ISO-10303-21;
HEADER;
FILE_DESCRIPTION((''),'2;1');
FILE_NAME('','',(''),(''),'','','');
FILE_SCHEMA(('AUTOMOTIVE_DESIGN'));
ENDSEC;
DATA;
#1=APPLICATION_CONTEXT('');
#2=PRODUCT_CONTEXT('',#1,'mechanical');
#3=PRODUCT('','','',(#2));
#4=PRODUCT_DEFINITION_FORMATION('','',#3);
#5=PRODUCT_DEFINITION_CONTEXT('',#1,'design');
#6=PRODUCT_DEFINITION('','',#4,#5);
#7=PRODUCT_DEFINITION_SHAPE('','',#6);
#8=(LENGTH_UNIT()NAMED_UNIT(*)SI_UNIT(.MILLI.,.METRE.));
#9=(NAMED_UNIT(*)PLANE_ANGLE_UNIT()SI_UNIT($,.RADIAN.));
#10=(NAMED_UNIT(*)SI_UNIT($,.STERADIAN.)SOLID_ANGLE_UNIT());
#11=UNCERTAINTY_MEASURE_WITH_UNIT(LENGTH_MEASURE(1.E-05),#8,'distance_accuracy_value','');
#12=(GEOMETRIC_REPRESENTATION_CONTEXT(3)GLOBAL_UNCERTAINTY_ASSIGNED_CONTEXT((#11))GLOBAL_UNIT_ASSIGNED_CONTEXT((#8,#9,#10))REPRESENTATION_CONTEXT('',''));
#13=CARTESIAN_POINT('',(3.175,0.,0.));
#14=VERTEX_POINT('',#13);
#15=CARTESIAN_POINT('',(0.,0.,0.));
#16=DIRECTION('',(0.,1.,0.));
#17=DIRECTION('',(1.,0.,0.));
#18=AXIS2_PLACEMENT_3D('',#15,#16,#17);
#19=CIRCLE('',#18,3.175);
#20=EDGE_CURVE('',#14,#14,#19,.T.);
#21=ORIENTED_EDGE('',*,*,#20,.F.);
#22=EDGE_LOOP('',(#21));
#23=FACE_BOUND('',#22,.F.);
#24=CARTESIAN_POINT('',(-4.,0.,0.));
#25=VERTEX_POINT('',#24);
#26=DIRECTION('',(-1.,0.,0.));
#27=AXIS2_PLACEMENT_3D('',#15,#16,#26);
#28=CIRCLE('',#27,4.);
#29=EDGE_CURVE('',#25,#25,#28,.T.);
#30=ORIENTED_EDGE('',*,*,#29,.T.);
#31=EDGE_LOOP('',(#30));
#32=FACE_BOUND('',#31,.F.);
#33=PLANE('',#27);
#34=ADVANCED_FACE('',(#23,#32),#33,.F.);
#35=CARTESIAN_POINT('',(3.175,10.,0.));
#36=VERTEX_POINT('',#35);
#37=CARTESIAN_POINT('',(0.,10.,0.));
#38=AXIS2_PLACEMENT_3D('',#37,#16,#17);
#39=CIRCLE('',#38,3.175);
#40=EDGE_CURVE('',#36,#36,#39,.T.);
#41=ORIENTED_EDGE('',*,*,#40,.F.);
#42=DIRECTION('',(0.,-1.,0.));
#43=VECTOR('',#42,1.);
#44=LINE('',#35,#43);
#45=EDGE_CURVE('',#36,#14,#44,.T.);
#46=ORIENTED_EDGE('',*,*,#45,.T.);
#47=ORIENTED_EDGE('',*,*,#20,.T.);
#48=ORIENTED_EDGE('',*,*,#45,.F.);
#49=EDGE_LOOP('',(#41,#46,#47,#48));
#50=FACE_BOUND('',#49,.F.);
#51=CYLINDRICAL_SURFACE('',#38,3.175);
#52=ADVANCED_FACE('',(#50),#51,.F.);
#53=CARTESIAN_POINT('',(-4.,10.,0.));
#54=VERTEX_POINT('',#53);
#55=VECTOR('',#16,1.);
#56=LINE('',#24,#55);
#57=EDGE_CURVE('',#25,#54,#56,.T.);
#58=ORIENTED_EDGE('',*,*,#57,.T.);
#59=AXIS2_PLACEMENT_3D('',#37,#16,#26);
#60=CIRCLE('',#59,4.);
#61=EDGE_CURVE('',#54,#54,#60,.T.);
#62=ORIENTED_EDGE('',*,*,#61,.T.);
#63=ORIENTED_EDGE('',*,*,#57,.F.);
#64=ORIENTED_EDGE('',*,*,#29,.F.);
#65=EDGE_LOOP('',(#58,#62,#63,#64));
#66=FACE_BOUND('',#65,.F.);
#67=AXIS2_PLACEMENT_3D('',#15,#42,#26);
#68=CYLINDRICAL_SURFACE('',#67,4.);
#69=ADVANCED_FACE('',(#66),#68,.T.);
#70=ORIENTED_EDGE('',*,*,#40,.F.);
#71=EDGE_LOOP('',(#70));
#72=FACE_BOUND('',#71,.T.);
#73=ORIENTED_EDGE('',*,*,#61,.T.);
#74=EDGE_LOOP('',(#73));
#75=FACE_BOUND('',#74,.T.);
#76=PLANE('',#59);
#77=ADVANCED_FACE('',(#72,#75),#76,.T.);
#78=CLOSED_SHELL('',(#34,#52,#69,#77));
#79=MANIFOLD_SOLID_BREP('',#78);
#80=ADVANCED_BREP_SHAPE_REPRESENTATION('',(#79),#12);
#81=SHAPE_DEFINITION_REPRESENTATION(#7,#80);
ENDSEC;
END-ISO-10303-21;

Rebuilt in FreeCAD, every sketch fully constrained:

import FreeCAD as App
import Part
import Sketcher

V = App.Vector

doc = App.newDocument("Part")
params = doc.addObject("Spreadsheet::Sheet", "Params")
for row, (alias, value) in enumerate([
    ("sketch1_diameter", "8 mm"),
    ("pad1_length", "10 mm"),
    ("sketch2_diameter", "6.35 mm"),
    ("pocket1_length", "20 mm"),
], start=1):
    params.set(f"A{row}", alias)
    params.set(f"B{row}", "=" + value)
    params.setAlias(f"B{row}", alias)

body = doc.addObject("PartDesign::Body", "Body")

# Sketch on XZ plane
sketch1 = doc.addObject("Sketcher::SketchObject", "Sketch")
body.addObject(sketch1)
sketch1.AttachmentSupport = (doc.XZ_Plane, [""])
sketch1.MapMode = "FlatFace"
sketch1.addGeometry(Part.Circle(V(0, 0, 0), V(0, 0, 1), 4), False)
sketch1.addConstraint([
    Sketcher.Constraint("Coincident", 0, 3, -1, 1),
    Sketcher.Constraint("Diameter", 0, 8.0),
])
sketch1.setExpression("Constraints[1]", "Params.sketch1_diameter")
pad1 = doc.addObject("PartDesign::Pad", "Pad")
body.addObject(pad1)
pad1.Profile = sketch1
pad1.setExpression("Length", "Params.pad1_length")
pad1.Reversed = True

# Sketch on XZ plane
sketch2 = doc.addObject("Sketcher::SketchObject", "Sketch001")
body.addObject(sketch2)
sketch2.AttachmentSupport = (doc.XZ_Plane, [""])
sketch2.MapMode = "FlatFace"
sketch2.AttachmentOffset = App.Placement(V(0, 0, -10), App.Rotation())
sketch2.addGeometry(Part.Circle(V(0, 0, 0), V(0, 0, 1), 3.2), False)
sketch2.addConstraint([
    Sketcher.Constraint("Coincident", 0, 3, -1, 1),
    Sketcher.Constraint("Diameter", 0, 6.35),
])
sketch2.setExpression("Constraints[1]", "Params.sketch2_diameter")
pocket1 = doc.addObject("PartDesign::Pocket", "Pocket")
body.addObject(pocket1)
pocket1.Profile = sketch2
pocket1.setExpression("Length", "Params.pocket1_length")
pocket1.Reversed = True

doc.recompute()
